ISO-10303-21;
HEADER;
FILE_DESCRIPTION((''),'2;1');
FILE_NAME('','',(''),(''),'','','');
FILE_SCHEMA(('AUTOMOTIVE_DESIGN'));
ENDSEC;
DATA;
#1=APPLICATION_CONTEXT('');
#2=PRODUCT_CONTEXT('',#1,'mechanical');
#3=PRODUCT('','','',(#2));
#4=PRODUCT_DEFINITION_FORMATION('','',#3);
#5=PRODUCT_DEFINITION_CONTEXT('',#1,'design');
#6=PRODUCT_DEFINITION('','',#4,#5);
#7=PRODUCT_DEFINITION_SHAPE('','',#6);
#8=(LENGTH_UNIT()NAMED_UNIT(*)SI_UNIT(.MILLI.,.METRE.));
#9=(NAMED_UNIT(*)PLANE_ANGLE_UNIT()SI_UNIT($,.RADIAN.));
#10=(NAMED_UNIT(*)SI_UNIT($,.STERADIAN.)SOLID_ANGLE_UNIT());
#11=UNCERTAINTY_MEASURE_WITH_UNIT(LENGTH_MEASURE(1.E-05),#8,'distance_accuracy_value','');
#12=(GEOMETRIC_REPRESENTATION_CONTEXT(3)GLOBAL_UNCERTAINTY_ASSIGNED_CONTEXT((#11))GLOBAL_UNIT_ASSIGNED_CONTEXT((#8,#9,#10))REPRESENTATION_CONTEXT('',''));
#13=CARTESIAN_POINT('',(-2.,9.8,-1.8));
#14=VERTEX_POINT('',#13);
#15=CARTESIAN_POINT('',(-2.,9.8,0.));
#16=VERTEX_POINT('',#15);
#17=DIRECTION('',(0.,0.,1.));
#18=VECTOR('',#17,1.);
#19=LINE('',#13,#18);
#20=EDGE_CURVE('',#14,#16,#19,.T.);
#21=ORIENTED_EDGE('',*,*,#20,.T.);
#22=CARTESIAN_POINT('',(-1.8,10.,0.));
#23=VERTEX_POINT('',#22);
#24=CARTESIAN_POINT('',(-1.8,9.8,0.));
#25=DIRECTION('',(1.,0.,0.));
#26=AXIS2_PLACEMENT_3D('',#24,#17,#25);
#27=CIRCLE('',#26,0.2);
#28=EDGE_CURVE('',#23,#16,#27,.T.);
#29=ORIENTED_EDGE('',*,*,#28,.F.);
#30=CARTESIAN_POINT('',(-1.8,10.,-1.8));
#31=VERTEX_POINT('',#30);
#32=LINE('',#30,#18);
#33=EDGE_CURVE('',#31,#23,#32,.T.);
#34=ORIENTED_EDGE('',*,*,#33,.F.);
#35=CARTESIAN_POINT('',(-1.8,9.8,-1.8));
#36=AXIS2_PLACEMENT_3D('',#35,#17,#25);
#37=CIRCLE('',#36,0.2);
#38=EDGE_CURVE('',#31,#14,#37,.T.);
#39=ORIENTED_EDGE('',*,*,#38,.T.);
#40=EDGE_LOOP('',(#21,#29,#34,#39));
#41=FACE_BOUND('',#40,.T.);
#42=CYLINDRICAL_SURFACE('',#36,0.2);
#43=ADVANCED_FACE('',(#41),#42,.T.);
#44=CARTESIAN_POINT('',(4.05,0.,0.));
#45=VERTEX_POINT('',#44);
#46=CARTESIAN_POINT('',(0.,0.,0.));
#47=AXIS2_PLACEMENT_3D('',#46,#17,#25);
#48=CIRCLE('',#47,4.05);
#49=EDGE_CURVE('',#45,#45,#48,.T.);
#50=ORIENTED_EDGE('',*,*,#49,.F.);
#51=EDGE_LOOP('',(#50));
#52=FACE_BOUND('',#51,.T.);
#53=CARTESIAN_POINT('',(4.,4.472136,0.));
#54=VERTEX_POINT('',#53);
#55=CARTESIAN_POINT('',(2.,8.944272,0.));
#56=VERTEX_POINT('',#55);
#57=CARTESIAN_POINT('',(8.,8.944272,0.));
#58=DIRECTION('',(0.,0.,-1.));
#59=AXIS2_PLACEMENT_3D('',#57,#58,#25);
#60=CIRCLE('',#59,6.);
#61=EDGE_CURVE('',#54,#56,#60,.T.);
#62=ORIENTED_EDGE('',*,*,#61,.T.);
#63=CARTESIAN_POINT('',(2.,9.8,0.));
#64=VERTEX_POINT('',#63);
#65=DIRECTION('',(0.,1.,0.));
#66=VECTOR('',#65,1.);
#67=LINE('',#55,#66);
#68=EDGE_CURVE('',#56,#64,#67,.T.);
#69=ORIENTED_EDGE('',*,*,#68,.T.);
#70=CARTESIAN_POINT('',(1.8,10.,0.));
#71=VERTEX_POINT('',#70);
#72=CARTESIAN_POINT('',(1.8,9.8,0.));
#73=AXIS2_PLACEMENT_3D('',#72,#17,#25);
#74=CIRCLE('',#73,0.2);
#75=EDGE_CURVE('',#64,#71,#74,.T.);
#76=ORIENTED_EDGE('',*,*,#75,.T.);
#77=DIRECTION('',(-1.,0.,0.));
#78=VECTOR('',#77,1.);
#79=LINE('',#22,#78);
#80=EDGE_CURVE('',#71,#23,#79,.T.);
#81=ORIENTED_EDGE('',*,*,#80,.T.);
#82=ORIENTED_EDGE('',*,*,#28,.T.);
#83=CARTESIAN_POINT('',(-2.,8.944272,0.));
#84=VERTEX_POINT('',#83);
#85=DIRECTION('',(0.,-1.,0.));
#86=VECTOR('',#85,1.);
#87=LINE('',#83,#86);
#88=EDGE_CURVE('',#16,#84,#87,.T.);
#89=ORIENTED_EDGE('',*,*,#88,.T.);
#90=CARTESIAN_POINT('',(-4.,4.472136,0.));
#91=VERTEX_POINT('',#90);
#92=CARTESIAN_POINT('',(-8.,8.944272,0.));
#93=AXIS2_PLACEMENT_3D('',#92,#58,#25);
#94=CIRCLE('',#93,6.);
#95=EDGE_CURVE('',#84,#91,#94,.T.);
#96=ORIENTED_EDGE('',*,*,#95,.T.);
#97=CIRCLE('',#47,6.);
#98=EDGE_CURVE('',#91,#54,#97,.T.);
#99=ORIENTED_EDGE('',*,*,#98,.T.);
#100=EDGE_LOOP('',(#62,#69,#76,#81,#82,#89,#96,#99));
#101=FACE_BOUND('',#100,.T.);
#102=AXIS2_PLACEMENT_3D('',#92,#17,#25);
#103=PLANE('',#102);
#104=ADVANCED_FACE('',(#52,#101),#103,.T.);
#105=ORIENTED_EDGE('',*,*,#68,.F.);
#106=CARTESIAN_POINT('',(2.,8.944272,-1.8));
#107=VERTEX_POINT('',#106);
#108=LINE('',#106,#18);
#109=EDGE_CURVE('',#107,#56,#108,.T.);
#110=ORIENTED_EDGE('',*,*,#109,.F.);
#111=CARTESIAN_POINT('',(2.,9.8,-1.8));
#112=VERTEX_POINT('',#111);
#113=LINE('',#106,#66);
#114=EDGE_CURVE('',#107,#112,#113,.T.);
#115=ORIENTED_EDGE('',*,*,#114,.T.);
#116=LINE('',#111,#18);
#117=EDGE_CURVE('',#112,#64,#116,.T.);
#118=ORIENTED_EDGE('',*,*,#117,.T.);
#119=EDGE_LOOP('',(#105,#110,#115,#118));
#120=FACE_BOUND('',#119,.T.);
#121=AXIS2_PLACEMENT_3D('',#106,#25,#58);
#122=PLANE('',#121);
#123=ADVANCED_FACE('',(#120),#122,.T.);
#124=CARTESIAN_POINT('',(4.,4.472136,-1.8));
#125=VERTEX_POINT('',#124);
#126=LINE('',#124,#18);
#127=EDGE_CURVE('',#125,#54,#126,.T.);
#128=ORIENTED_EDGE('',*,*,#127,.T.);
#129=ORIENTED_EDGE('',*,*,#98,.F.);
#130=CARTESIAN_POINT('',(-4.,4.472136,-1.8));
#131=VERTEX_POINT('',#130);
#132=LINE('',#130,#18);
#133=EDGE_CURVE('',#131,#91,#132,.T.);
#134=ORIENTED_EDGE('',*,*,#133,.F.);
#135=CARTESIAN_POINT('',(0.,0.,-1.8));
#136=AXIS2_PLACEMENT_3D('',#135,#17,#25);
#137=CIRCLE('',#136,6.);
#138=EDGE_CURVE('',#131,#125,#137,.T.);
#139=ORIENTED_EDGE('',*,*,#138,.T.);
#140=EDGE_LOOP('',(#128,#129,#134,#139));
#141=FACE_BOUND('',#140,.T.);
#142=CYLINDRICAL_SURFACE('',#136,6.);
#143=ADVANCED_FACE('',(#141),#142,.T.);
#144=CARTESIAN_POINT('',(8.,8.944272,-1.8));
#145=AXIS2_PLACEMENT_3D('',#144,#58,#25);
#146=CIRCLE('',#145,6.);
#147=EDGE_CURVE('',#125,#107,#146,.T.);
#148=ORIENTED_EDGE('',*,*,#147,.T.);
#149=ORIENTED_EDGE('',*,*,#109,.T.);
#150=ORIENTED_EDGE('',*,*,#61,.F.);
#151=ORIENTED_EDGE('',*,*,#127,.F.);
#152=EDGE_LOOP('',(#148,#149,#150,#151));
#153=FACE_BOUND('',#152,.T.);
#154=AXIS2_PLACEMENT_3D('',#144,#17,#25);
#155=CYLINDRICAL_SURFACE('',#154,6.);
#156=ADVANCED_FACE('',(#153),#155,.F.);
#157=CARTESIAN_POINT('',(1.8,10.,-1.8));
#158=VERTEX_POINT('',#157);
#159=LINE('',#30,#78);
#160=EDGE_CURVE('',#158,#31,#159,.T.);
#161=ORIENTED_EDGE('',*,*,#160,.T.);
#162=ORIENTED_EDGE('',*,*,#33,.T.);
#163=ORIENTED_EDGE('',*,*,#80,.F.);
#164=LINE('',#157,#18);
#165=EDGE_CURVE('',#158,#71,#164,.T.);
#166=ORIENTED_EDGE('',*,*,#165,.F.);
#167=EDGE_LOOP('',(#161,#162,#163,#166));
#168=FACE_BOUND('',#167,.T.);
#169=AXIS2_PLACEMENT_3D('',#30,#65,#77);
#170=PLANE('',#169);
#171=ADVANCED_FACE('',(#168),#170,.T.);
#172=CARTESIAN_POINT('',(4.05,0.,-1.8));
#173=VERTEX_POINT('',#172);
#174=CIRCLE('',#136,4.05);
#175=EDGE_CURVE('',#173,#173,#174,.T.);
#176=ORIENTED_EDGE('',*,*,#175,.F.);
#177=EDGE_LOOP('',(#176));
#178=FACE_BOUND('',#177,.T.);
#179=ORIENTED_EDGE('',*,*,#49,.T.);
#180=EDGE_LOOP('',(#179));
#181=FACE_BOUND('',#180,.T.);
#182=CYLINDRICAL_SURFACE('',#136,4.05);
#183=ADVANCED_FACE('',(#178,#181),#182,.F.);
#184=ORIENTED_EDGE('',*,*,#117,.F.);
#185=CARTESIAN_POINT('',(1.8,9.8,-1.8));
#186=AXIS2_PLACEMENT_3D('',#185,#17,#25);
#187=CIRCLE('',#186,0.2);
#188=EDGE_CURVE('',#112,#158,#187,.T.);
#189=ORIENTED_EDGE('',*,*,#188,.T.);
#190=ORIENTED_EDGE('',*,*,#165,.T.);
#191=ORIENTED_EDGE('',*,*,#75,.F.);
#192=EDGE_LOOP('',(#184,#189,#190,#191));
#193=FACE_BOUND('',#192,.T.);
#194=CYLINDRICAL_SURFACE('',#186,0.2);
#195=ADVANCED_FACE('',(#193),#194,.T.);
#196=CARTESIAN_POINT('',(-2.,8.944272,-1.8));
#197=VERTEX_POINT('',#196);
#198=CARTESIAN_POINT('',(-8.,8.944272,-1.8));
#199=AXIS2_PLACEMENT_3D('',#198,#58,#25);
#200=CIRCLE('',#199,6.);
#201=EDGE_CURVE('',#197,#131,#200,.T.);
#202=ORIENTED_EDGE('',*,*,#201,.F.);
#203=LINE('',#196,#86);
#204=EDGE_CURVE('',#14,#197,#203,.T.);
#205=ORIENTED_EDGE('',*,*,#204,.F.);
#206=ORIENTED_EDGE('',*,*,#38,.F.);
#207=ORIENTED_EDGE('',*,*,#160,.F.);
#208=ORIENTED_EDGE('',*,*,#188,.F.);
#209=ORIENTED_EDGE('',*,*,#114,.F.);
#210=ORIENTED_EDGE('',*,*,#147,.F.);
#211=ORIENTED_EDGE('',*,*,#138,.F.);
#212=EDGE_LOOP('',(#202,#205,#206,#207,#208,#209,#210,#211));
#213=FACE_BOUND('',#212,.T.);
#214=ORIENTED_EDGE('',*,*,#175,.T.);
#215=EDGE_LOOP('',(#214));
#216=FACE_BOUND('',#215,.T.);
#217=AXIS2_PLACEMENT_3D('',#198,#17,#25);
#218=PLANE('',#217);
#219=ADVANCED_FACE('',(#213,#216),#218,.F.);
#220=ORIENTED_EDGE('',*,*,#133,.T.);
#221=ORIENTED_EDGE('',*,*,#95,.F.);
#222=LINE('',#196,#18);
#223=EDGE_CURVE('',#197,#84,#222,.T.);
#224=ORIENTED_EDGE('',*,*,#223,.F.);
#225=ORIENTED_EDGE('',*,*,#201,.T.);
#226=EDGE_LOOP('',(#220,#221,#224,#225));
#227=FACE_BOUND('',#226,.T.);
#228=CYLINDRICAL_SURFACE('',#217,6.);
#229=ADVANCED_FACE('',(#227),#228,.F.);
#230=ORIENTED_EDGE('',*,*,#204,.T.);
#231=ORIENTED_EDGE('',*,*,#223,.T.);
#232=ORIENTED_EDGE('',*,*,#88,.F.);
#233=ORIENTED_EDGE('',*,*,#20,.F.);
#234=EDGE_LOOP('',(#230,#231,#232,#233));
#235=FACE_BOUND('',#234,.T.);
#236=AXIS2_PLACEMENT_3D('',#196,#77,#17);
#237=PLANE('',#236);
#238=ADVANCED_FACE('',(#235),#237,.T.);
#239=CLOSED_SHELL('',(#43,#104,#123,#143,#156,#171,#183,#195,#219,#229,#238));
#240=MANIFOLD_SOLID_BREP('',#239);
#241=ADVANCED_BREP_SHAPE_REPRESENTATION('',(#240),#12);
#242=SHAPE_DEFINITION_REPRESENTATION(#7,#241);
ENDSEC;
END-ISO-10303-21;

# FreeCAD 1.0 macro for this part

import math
import FreeCAD as App
import Part
import Sketcher

V = App.Vector

doc = App.newDocument("Part")
body = doc.addObject("PartDesign::Body", "Body")

sketch1 = body.newObject("Sketcher::SketchObject", "Sketch")
sketch1.AttachmentSupport = (doc.getObject("XY_Plane"), [""])
sketch1.MapMode = "FlatFace"
sketch1.addGeometry([
    Part.LineSegment(V(-2, 9.8, 0), V(-2, 8.944272, 0)),
    Part.ArcOfCircle(Part.Circle(V(-8, 8.944272, 0), V(0, 0, 1), 6), math.radians(-48.189685), math.radians(0)),
    Part.ArcOfCircle(Part.Circle(V(0, 0, 0), V(0, 0, 1), 6), math.radians(131.810315), math.radians(408.189685)),
    Part.ArcOfCircle(Part.Circle(V(8, 8.944272, 0), V(0, 0, 1), 6), math.radians(180), math.radians(228.189685)),
    Part.LineSegment(V(2, 8.944272, 0), V(2, 9.8, 0)),
    Part.ArcOfCircle(Part.Circle(V(1.8, 9.8, 0), V(0, 0, 1), 0.2), math.radians(0), math.radians(90)),
    Part.LineSegment(V(1.8, 10, 0), V(-1.8, 10, 0)),
    Part.ArcOfCircle(Part.Circle(V(-1.8, 9.8, 0), V(0, 0, 1), 0.2), math.radians(90), math.radians(180)),
], False)
sketch1.addConstraint([
    Sketcher.Constraint("Tangent", 0, 2, 1, 2),
    Sketcher.Constraint("Tangent", 1, 1, 2, 1),
    Sketcher.Constraint("Tangent", 2, 2, 3, 2),
    Sketcher.Constraint("Tangent", 3, 1, 4, 1),
    Sketcher.Constraint("Tangent", 4, 2, 5, 1),
    Sketcher.Constraint("Tangent", 5, 2, 6, 1),
    Sketcher.Constraint("Tangent", 6, 2, 7, 1),
    Sketcher.Constraint("Tangent", 7, 2, 0, 1),
    Sketcher.Constraint("Vertical", 0),
    Sketcher.Constraint("Vertical", 4),
    Sketcher.Constraint("Horizontal", 6),
    Sketcher.Constraint("Coincident", 2, 3, -1, 1),
    Sketcher.Constraint("Equal", 1, 2),
    Sketcher.Constraint("Equal", 2, 3),
    Sketcher.Constraint("Equal", 5, 7),
    Sketcher.Constraint("Horizontal", 1, 3, 3, 3),
    Sketcher.Constraint("Radius", 1, 6.0),
    Sketcher.Constraint("Radius", 5, 0.2),
    Sketcher.Constraint("DistanceX", 6, 2, 6, 1, 3.6),
    Sketcher.Constraint("DistanceY", -1, 1, 5, 2, 10.0),
])
pad1 = body.newObject("PartDesign::Pad", "Pad")
pad1.Profile = sketch1
pad1.Length = 1.8
pad1.Reversed = True

sketch2 = body.newObject("Sketcher::SketchObject", "Sketch001")
sketch2.AttachmentSupport = (doc.getObject("XY_Plane"), [""])
sketch2.MapMode = "FlatFace"
sketch2.addGeometry(Part.Circle(V(0, 0, 0), V(0, 0, 1), 4.05), False)
sketch2.addConstraint([
    Sketcher.Constraint("Coincident", 0, 3, -1, 1),
    Sketcher.Constraint("Diameter", 0, 8.1),
])
pocket1 = body.newObject("PartDesign::Pocket", "Pocket")
pocket1.Profile = sketch2
pocket1.Length = 1.8

doc.recompute()
